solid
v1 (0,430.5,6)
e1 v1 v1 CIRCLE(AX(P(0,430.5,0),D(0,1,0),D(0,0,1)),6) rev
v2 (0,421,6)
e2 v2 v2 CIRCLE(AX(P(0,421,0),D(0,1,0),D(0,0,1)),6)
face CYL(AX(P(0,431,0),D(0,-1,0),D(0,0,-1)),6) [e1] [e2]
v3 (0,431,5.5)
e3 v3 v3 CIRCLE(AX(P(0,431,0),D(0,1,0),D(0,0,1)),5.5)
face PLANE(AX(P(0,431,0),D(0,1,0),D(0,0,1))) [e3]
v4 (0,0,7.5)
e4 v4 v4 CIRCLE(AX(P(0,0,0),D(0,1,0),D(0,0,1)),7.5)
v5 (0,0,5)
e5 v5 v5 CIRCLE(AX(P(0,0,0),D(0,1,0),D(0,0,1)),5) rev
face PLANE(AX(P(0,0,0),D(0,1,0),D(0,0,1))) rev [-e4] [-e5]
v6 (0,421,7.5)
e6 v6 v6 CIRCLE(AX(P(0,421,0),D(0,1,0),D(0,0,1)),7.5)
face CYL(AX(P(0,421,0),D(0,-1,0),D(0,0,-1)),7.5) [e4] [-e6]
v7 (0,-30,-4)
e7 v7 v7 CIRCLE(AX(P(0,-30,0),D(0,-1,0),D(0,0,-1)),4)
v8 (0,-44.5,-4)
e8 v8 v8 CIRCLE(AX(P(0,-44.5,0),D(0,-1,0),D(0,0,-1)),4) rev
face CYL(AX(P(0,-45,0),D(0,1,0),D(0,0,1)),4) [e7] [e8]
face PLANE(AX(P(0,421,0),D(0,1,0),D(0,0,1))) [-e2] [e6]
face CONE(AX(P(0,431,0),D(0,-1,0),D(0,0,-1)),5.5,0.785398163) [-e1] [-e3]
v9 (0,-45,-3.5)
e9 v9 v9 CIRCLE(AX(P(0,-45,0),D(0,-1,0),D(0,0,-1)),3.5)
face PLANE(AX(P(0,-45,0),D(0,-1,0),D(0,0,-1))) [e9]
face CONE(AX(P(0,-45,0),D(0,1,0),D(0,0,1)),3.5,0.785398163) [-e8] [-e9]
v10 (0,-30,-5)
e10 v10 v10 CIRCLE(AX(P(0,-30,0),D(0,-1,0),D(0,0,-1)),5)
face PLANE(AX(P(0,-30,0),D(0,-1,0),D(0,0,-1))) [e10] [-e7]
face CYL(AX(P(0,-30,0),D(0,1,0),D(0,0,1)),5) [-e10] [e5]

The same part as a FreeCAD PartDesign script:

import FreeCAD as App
import Part
import Sketcher

V = App.Vector
Q = App.Units.Quantity


def edges_at(feature, points):
    """Names of the edges that pass closest to the given points."""
    edges = feature.Shape.Edges
    near = lambda p: min(range(len(edges)), key=lambda i: edges[i].distToShape(Part.Vertex(*p))[0])
    return sorted({f"Edge{near(p) + 1}" for p in points})

doc = App.newDocument("Part")
params = doc.addObject("Spreadsheet::Sheet", "Params")
for row, (alias, value) in enumerate([
    ("sketch1_diameter", "15 mm"),
    ("pad1_length", "421 mm"),
    ("sketch2_diameter", "12 mm"),
    ("pad2_length", "10 mm"),
    ("chamfer_size", "0.5 mm"),
    ("sketch3_diameter", "10 mm"),
    ("pad3_length", "30 mm"),
    ("sketch4_diameter", "8 mm"),
    ("pad4_length", "15 mm"),
    ("chamfer2_size", "0.5 mm"),
], start=1):
    params.set(f"A{row}", alias)
    params.set(f"B{row}", "=" + value)
    params.setAlias(f"B{row}", alias)

body = doc.addObject("PartDesign::Body", "Body")

sketch1 = body.newObject("Sketcher::SketchObject", "Sketch")
sketch1.AttachmentSupport = (doc.getObject("XZ_Plane"), [""])
sketch1.MapMode = "FlatFace"
sketch1.addGeometry(Part.Circle(V(0, 0, 0), V(0, 0, 1), 8), False)
sketch1.addConstraint([
    Sketcher.Constraint("Coincident", 0, 3, -1, 1),
    Sketcher.Constraint("Diameter", 0, Q("15 mm")),
])
sketch1.setExpression("Constraints[1]", "Params.sketch1_diameter")
pad1 = body.newObject("PartDesign::Pad", "Pad")
pad1.Profile = sketch1
pad1.setExpression("Length", "Params.pad1_length")
pad1.Reversed = True

sketch2 = body.newObject("Sketcher::SketchObject", "Sketch001")
sketch2.AttachmentSupport = (doc.getObject("XZ_Plane"), [""])
sketch2.MapMode = "FlatFace"
sketch2.AttachmentOffset = App.Placement(V(0, 0, -421), App.Rotation())
sketch2.addGeometry(Part.Circle(V(0, 0, 0), V(0, 0, 1), 6), False)
sketch2.addConstraint([
    Sketcher.Constraint("Coincident", 0, 3, -1, 1),
    Sketcher.Constraint("Diameter", 0, Q("12 mm")),
])
sketch2.setExpression("Constraints[1]", "Params.sketch2_diameter")
pad2 = body.newObject("PartDesign::Pad", "Pad001")
pad2.Profile = sketch2
pad2.setExpression("Length", "Params.pad2_length")
pad2.Reversed = True
doc.recompute()

chamfer = body.newObject("PartDesign::Chamfer", "Chamfer")
chamfer.Base = (pad2, edges_at(pad2, [(-6, 431, 0)]))
chamfer.setExpression("Size", "Params.chamfer_size")

sketch3 = body.newObject("Sketcher::SketchObject", "Sketch002")
sketch3.AttachmentSupport = (doc.getObject("XZ_Plane"), [""])
sketch3.MapMode = "FlatFace"
sketch3.addGeometry(Part.Circle(V(0, 0, 0), V(0, 0, 1), 5), False)
sketch3.addConstraint([
    Sketcher.Constraint("Coincident", 0, 3, -1, 1),
    Sketcher.Constraint("Diameter", 0, Q("10 mm")),
])
sketch3.setExpression("Constraints[1]", "Params.sketch3_diameter")
pad3 = body.newObject("PartDesign::Pad", "Pad002")
pad3.Profile = sketch3
pad3.setExpression("Length", "Params.pad3_length")

sketch4 = body.newObject("Sketcher::SketchObject", "Sketch003")
sketch4.AttachmentSupport = (doc.getObject("XZ_Plane"), [""])
sketch4.MapMode = "FlatFace"
sketch4.AttachmentOffset = App.Placement(V(0, 0, 30), App.Rotation())
sketch4.addGeometry(Part.Circle(V(0, 0, 0), V(0, 0, 1), 4), False)
sketch4.addConstraint([
    Sketcher.Constraint("Coincident", 0, 3, -1, 1),
    Sketcher.Constraint("Diameter", 0, Q("8 mm")),
])
sketch4.setExpression("Constraints[1]", "Params.sketch4_diameter")
pad4 = body.newObject("PartDesign::Pad", "Pad003")
pad4.Profile = sketch4
pad4.setExpression("Length", "Params.pad4_length")
doc.recompute()

chamfer2 = body.newObject("PartDesign::Chamfer", "Chamfer001")
chamfer2.Base = (pad4, edges_at(pad4, [(-4, -45, 0)]))
chamfer2.setExpression("Size", "Params.chamfer2_size")

doc.recompute()
